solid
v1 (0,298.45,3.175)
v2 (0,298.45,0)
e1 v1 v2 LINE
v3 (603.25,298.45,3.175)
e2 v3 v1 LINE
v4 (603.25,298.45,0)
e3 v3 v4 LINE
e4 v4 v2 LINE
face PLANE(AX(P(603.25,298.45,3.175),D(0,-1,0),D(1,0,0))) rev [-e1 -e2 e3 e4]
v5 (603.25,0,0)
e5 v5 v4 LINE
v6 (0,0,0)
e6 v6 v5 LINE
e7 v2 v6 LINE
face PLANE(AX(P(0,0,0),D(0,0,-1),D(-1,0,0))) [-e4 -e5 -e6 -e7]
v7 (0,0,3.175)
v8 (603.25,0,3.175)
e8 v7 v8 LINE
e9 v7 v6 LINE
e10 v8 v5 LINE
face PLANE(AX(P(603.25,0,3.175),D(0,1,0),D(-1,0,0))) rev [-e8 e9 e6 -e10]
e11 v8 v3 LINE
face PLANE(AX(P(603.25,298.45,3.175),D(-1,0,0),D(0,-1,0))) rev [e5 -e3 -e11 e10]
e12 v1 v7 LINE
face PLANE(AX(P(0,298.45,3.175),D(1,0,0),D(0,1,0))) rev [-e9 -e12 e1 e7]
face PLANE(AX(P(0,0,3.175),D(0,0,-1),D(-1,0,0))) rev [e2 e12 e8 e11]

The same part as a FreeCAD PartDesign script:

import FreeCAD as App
import Part
import Sketcher
Q = App.Units.Quantity


def add_polygon(sketch, points):
    """Adds a closed chain of lines whose ends are joined by coincident constraints."""
    first, n = sketch.GeometryCount, len(points)
    for a, b in zip(points, points[1:] + points[:1]):
        sketch.addGeometry(Part.LineSegment(App.Vector(*a, 0), App.Vector(*b, 0)), False)
    for i in range(n):
        sketch.addConstraint(Sketcher.Constraint("Coincident", first + i, 2, first + (i + 1) % n, 1))

doc = App.newDocument("Part")
params = doc.addObject("Spreadsheet::Sheet", "Params")
for row, (alias, value) in enumerate([
    ("sketch1_width", "23.75 in"),
    ("sketch1_height", "11.75 in"),
    ("pad1_length", "0.125 in"),
], start=1):
    params.set(f"A{row}", alias)
    params.set(f"B{row}", "=" + value)
    params.setAlias(f"B{row}", alias)

body = doc.addObject("PartDesign::Body", "Body")

# Sketch on XY plane
sketch1 = body.newObject("Sketcher::SketchObject", "Sketch")
sketch1.AttachmentSupport = (doc.getObject("XY_Plane"), [""])
sketch1.MapMode = "FlatFace"
add_polygon(sketch1, [(0, 298), (0, 0), (603, 0), (603, 298)])  # lines 0-3
sketch1.addConstraint(Sketcher.Constraint("Vertical", 0))
sketch1.addConstraint(Sketcher.Constraint("Horizontal", 1))
sketch1.addConstraint(Sketcher.Constraint("Vertical", 2))
sketch1.addConstraint(Sketcher.Constraint("Horizontal", 3))
sketch1.addConstraint(Sketcher.Constraint("Coincident", 0, 2, -1, 1))
sketch1.addConstraint(Sketcher.Constraint("DistanceX", 1, 1, 1, 2, Q("23.75 in")))
sketch1.addConstraint(Sketcher.Constraint("DistanceY", 0, 2, 0, 1, Q("11.75 in")))
sketch1.setExpression("Constraints[9]", "Params.sketch1_width")
sketch1.setExpression("Constraints[10]", "Params.sketch1_height")
pad1 = body.newObject("PartDesign::Pad", "Pad")
pad1.Profile = sketch1
pad1.setExpression("Length", "Params.pad1_length")

doc.recompute()
